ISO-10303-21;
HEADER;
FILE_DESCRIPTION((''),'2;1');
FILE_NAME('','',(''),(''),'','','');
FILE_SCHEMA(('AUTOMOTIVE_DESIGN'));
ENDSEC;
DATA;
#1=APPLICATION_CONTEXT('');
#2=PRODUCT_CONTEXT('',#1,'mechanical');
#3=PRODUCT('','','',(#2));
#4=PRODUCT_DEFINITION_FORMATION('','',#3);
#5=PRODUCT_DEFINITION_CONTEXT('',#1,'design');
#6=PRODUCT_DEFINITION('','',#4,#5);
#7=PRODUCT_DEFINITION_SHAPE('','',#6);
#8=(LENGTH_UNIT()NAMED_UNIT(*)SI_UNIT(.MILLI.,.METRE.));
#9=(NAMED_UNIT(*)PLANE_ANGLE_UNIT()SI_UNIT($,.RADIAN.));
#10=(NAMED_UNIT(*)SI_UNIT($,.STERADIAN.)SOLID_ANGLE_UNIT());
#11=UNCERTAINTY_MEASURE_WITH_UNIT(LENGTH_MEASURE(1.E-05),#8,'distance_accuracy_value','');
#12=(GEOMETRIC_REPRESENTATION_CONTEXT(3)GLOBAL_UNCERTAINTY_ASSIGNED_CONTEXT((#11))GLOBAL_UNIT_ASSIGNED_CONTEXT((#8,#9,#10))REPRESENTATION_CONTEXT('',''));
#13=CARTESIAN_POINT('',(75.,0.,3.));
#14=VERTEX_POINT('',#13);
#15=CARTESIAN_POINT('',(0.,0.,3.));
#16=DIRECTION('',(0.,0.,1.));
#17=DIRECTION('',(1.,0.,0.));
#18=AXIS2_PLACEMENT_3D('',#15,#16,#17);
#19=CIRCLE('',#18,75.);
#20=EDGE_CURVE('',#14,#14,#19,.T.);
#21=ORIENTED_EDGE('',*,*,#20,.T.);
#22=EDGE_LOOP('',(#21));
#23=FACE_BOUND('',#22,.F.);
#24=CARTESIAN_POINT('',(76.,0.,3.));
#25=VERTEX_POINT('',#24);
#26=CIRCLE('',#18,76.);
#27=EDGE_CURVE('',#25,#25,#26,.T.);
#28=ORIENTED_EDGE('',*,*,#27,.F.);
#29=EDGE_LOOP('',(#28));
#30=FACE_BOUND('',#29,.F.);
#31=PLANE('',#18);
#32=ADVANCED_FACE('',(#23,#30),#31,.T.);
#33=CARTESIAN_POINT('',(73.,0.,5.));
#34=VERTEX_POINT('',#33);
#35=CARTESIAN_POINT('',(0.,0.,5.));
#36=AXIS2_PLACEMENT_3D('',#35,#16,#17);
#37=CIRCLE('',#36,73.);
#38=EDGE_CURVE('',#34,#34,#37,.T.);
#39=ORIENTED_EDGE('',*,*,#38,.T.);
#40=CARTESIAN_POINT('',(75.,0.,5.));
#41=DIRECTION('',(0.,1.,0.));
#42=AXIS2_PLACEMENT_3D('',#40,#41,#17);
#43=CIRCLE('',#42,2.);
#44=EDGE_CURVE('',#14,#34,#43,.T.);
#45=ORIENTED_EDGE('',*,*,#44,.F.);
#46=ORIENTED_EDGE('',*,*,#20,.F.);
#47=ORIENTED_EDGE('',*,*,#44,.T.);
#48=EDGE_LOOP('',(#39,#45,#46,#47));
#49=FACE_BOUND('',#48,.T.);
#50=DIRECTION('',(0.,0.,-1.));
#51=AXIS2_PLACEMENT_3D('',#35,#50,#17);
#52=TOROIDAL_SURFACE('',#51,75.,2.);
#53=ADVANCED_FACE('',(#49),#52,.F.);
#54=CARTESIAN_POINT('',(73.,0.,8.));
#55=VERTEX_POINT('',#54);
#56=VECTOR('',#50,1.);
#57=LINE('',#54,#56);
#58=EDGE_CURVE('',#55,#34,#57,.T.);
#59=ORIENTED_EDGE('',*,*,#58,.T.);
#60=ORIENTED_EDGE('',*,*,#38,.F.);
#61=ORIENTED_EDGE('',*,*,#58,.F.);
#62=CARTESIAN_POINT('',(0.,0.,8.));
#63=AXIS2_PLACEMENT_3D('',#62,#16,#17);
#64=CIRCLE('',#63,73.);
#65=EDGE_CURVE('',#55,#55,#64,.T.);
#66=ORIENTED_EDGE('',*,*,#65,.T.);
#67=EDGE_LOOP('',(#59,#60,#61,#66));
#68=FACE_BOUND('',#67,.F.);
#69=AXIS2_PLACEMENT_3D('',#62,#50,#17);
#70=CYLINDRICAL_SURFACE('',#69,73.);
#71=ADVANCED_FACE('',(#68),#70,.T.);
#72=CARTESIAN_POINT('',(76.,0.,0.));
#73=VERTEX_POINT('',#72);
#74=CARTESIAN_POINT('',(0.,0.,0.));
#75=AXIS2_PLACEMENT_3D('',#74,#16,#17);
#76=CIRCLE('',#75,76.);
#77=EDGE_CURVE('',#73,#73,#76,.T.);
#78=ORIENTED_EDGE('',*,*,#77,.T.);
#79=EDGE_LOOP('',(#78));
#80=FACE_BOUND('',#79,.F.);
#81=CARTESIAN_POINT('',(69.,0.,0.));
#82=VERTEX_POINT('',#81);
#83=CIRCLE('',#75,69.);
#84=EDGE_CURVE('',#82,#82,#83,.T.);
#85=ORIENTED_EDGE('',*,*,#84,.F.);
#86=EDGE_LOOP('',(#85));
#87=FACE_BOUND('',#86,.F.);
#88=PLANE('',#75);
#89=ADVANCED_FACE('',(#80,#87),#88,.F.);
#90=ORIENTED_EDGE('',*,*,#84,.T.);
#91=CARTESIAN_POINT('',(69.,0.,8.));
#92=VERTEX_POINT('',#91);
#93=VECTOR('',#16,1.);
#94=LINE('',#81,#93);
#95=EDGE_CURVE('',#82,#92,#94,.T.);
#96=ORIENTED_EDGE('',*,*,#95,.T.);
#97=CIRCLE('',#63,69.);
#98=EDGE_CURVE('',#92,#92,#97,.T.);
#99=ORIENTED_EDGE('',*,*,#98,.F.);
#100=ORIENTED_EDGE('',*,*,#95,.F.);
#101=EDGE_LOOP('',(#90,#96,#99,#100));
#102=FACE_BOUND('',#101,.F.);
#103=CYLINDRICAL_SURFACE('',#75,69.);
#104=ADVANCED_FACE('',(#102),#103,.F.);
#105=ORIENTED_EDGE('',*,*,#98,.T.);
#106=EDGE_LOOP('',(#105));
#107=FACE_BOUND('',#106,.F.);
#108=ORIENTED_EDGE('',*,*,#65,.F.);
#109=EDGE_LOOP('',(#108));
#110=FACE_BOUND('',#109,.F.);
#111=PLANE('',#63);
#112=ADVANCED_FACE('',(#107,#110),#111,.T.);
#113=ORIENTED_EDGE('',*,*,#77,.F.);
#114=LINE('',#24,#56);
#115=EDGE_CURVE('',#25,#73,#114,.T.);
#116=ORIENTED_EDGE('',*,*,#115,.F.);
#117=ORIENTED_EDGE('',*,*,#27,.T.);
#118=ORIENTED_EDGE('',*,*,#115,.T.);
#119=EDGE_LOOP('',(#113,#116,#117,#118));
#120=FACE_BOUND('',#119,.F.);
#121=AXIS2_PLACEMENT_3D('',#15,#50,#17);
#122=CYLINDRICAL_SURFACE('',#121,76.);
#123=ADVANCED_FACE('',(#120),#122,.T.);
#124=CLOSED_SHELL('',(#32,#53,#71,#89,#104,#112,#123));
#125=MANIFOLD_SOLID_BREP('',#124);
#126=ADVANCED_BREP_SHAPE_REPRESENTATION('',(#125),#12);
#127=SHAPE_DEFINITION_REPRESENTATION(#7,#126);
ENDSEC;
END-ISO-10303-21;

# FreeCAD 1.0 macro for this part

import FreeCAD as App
import Part
import Sketcher
Q = App.Units.Quantity


def edges_at(feature, points):
    """Names of the edges that pass closest to the given points."""
    edges = feature.Shape.Edges
    near = lambda p: min(range(len(edges)), key=lambda i: edges[i].distToShape(Part.Vertex(*p))[0])
    return sorted({f"Edge{near(p) + 1}" for p in points})

doc = App.newDocument("Part")
params = doc.addObject("Spreadsheet::Sheet", "Params")
for row, (alias, value) in enumerate([
    ("sketch1_width", "7 mm"),
    ("sketch1_width2", "4 mm"),
    ("sketch1_height", "8 mm"),
    ("revolution_angle", "360 deg"),
    ("fillet_radius", "2 mm"),
], start=1):
    params.set(f"A{row}", alias)
    params.set(f"B{row}", "=" + value)
    params.setAlias(f"B{row}", alias)

body = doc.addObject("PartDesign::Body", "Body")

sketch1 = body.newObject("Sketcher::SketchObject", "Sketch")
sketch1.AttachmentSupport = (doc.getObject("XZ_Plane"), [""])
sketch1.MapMode = "FlatFace"
sketch1.addGeometry([
    Part.LineSegment(App.Vector(76, 0, 0), App.Vector(69, 0, 0)),
    Part.LineSegment(App.Vector(69, 0, 0), App.Vector(69, 8, 0)),
    Part.LineSegment(App.Vector(69, 8, 0), App.Vector(73, 8, 0)),
    Part.LineSegment(App.Vector(73, 8, 0), App.Vector(73, 3, 0)),
    Part.LineSegment(App.Vector(73, 3, 0), App.Vector(76, 3, 0)),
    Part.LineSegment(App.Vector(76, 3, 0), App.Vector(76, 0, 0)),
], False)
sketch1.addConstraint([
    Sketcher.Constraint("Coincident", 0, 2, 1, 1),
    Sketcher.Constraint("Coincident", 1, 2, 2, 1),
    Sketcher.Constraint("Coincident", 2, 2, 3, 1),
    Sketcher.Constraint("Coincident", 3, 2, 4, 1),
    Sketcher.Constraint("Coincident", 4, 2, 5, 1),
    Sketcher.Constraint("Coincident", 5, 2, 0, 1),
    Sketcher.Constraint("Horizontal", 0),
    Sketcher.Constraint("Vertical", 1),
    Sketcher.Constraint("Horizontal", 2),
    Sketcher.Constraint("Vertical", 3),
    Sketcher.Constraint("Horizontal", 4),
    Sketcher.Constraint("Vertical", 5),
    Sketcher.Constraint("PointOnObject", 0, 2, -1),
    Sketcher.Constraint("Equal", 4, 5),
    Sketcher.Constraint("DistanceX", 0, 2, 0, 1, Q("7 mm")),
    Sketcher.Constraint("DistanceX", 2, 1, 2, 2, Q("4 mm")),
    Sketcher.Constraint("DistanceY", 1, 1, 1, 2, Q("8 mm")),
    Sketcher.Constraint("DistanceX", -1, 1, 0, 2, Q("69 mm")),
])
sketch1.setExpression("Constraints[14]", "Params.sketch1_width")
sketch1.setExpression("Constraints[15]", "Params.sketch1_width2")
sketch1.setExpression("Constraints[16]", "Params.sketch1_height")
revolution = body.newObject("PartDesign::Revolution", "Revolution")
revolution.Profile = sketch1
revolution.ReferenceAxis = (sketch1, ["V_Axis"])
revolution.setExpression("Angle", "Params.revolution_angle")
doc.recompute()

fillet = body.newObject("PartDesign::Fillet", "Fillet")
fillet.Base = (revolution, edges_at(revolution, [(-73, 0, 3)]))
fillet.setExpression("Radius", "Params.fillet_radius")

doc.recompute()
